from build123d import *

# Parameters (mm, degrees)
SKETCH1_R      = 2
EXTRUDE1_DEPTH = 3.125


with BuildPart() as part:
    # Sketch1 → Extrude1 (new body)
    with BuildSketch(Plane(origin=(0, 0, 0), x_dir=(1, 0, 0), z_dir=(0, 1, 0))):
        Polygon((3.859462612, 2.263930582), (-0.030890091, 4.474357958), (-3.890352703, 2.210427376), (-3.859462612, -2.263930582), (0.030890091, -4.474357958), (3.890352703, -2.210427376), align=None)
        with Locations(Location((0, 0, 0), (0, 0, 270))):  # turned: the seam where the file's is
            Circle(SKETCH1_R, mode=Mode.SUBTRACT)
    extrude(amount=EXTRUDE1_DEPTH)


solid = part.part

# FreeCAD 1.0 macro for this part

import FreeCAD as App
import Part
import Sketcher

V = App.Vector
Q = App.Units.Quantity

doc = App.newDocument("Part")
body = doc.addObject("PartDesign::Body", "Body")

# Sketch on XZ plane
sketch1 = doc.addObject("Sketcher::SketchObject", "Sketch")
body.addObject(sketch1)
sketch1.AttachmentSupport = (doc.XZ_Plane, [""])
sketch1.MapMode = "FlatFace"
sketch1.addGeometry([
    Part.LineSegment(V(3.859463, -2.263931, 0), V(-0.03089, -4.474358, 0)),  # 0
    Part.LineSegment(V(-0.03089, -4.474358, 0), V(-3.890353, -2.210427, 0)),  # 1
    Part.LineSegment(V(-3.890353, -2.210427, 0), V(-3.859463, 2.263931, 0)),  # 2
    Part.LineSegment(V(-3.859463, 2.263931, 0), V(0.03089, 4.474358, 0)),  # 3
    Part.LineSegment(V(0.03089, 4.474358, 0), V(3.890353, 2.210427, 0)),  # 4
    Part.LineSegment(V(3.890353, 2.210427, 0), V(3.859463, -2.263931, 0)),  # 5
    Part.Circle(V(0, 0, 0), V(0, 0, 1), 2),  # 6
], False)
sketch1.addConstraint([
    Sketcher.Constraint("Coincident", 0, 2, 1, 1),
    Sketcher.Constraint("Coincident", 1, 2, 2, 1),
    Sketcher.Constraint("Coincident", 2, 2, 3, 1),
    Sketcher.Constraint("Coincident", 3, 2, 4, 1),
    Sketcher.Constraint("Coincident", 4, 2, 5, 1),
    Sketcher.Constraint("Coincident", 5, 2, 0, 1),
    Sketcher.Constraint("Coincident", 6, 3, -1, 1),
    Sketcher.Constraint("Symmetric", 0, 2, 3, 2, -1, 1),
    Sketcher.Constraint("Symmetric", 1, 2, 4, 2, -1, 1),
    Sketcher.Constraint("Symmetric", 2, 2, 5, 2, -1, 1),
    Sketcher.Constraint("Equal", 0, 1),
    Sketcher.Constraint("Equal", 1, 2),
    Sketcher.Constraint("Diameter", 6, Q("4 mm")),
    Sketcher.Constraint("DistanceX", 0, 2, -1, 1, Q("0.03089 mm")),
    Sketcher.Constraint("DistanceY", -1, 1, 2, 2, Q("2.263931 mm")),
    Sketcher.Constraint("DistanceY", 0, 2, 1, 2, Q("2.263931 mm")),
    Sketcher.Constraint("DistanceX", 1, 2, 2, 2, Q("0.03089 mm")),
])
pad1 = doc.addObject("PartDesign::Pad", "Pad")
body.addObject(pad1)
pad1.Profile = sketch1
pad1.Length = 3.125
pad1.Reversed = True

doc.recompute()
